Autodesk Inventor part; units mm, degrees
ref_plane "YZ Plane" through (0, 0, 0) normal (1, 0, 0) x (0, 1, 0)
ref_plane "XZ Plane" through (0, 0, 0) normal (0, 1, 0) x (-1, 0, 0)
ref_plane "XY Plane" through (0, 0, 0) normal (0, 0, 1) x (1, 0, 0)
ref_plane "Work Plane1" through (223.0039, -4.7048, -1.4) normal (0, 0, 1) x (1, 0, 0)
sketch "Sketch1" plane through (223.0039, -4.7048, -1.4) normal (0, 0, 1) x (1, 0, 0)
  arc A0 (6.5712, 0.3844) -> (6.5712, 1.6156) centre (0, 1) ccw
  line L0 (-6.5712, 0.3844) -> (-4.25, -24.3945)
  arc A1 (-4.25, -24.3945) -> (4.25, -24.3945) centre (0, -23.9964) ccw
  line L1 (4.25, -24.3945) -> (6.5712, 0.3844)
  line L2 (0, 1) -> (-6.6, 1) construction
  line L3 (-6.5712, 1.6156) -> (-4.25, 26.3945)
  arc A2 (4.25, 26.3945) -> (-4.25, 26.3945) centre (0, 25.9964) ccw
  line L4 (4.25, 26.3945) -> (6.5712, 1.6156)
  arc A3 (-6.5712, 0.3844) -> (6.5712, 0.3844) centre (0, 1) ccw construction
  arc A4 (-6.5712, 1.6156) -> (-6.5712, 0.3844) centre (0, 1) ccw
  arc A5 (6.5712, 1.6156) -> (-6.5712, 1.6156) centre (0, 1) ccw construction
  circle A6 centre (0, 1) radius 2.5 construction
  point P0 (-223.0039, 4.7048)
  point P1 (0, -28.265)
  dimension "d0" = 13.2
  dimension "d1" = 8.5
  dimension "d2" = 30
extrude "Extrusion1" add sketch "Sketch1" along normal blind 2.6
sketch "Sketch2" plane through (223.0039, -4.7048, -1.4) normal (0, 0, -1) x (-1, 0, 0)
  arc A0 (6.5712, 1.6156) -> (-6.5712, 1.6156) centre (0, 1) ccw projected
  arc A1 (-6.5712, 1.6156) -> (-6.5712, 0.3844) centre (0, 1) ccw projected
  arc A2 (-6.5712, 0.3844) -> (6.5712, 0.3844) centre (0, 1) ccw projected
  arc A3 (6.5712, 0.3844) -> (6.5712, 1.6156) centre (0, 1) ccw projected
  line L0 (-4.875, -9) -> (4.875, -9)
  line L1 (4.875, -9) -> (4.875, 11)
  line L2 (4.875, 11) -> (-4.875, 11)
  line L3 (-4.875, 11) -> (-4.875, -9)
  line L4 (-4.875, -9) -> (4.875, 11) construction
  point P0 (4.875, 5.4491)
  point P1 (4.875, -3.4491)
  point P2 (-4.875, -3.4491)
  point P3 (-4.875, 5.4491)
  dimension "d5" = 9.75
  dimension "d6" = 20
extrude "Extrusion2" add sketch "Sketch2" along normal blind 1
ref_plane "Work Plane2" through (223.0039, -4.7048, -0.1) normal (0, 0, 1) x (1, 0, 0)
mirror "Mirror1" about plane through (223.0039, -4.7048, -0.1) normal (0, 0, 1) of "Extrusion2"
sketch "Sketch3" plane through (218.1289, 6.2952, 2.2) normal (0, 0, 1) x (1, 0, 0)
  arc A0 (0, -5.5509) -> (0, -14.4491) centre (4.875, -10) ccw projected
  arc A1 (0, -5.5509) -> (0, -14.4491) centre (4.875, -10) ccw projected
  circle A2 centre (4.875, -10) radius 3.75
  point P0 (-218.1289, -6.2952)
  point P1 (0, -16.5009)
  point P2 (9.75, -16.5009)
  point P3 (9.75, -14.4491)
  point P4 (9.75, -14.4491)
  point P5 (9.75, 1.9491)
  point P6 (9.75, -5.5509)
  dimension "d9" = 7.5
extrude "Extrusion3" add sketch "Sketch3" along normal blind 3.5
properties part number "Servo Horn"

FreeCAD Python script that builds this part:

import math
import FreeCAD as App
import Part
import Sketcher

doc = App.newDocument("Part")
body = doc.addObject("PartDesign::Body", "Body")

# Sketch on XY plane
sketch1 = doc.addObject("Sketcher::SketchObject", "Sketch")
body.addObject(sketch1)
sketch1.AttachmentSupport = (doc.XY_Plane, [""])
sketch1.MapMode = "FlatFace"
sketch1.AttachmentOffset = App.Placement(App.Vector(0, 0, -1.4), App.Rotation())
sketch1.addGeometry(Part.LineSegment(App.Vector(227.2539, -29.0993, 0), App.Vector(229.5751, -4.3204, 0)), False)
sketch1.addGeometry(Part.ArcOfCircle(Part.Circle(App.Vector(223.0039, -3.7048, 0), App.Vector(0, 0, 1), 6.599972), math.radians(-5.351936), math.radians(5.351936)), False)
sketch1.addGeometry(Part.LineSegment(App.Vector(229.5751, -3.0892, 0), App.Vector(227.2539, 21.6897, 0)), False)
sketch1.addGeometry(Part.ArcOfCircle(Part.Circle(App.Vector(223.0039, 21.2916, 0), App.Vector(0, 0, 1), 4.268604), math.radians(5.351315), math.radians(174.648685)), False)
sketch1.addGeometry(Part.LineSegment(App.Vector(218.7539, 21.6897, 0), App.Vector(216.4327, -3.0892, 0)), False)
sketch1.addGeometry(Part.ArcOfCircle(Part.Circle(App.Vector(223.0039, -3.7048, 0), App.Vector(0, 0, 1), 6.599972), math.radians(174.648064), math.radians(185.351936)), False)
sketch1.addGeometry(Part.LineSegment(App.Vector(216.4327, -4.3204, 0), App.Vector(218.7539, -29.0993, 0)), False)
sketch1.addGeometry(Part.ArcOfCircle(Part.Circle(App.Vector(223.0039, -28.7012, 0), App.Vector(0, 0, 1), 4.268604), math.radians(-174.648685), math.radians(-5.351315)), False)
sketch1.addConstraint(Sketcher.Constraint("Tangent", 0, 2, 1, 1))
sketch1.addConstraint(Sketcher.Constraint("Tangent", 1, 2, 2, 1))
sketch1.addConstraint(Sketcher.Constraint("Tangent", 2, 2, 3, 1))
sketch1.addConstraint(Sketcher.Constraint("Tangent", 3, 2, 4, 1))
sketch1.addConstraint(Sketcher.Constraint("Tangent", 4, 2, 5, 1))
sketch1.addConstraint(Sketcher.Constraint("Tangent", 5, 2, 6, 1))
sketch1.addConstraint(Sketcher.Constraint("Tangent", 6, 2, 7, 1))
sketch1.addConstraint(Sketcher.Constraint("Tangent", 7, 2, 0, 1))
sketch1.addConstraint(Sketcher.Constraint("Coincident", 5, 3, 1, 3))
sketch1.addConstraint(Sketcher.Constraint("Equal", 1, 5))
sketch1.addConstraint(Sketcher.Constraint("Equal", 3, 7))
sketch1.addConstraint(Sketcher.Constraint("Parallel", 0, 4))
sketch1.addConstraint(Sketcher.Constraint("Parallel", 2, 6))
sketch1.addConstraint(Sketcher.Constraint("Horizontal", 2, 2, 3, 2))
sketch1.addConstraint(Sketcher.Constraint("Radius", 1, 6.6))
sketch1.addConstraint(Sketcher.Constraint("DistanceX", 3, 2, 2, 2, 8.5))
sketch1.addConstraint(Sketcher.Constraint("DistanceY", 0, 2, 2, 2, 26.01))
sketch1.addConstraint(Sketcher.Constraint("DistanceX", -1, 1, 1, 3, 223.004))
sketch1.addConstraint(Sketcher.Constraint("DistanceY", 1, 3, -1, 1, 3.7048))
pad1 = doc.addObject("PartDesign::Pad", "Pad")
body.addObject(pad1)
pad1.Profile = sketch1
pad1.Length = 2.6

# Sketch on XY plane
sketch2 = doc.addObject("Sketcher::SketchObject", "Sketch001")
body.addObject(sketch2)
sketch2.AttachmentSupport = (doc.XY_Plane, [""])
sketch2.MapMode = "FlatFace"
sketch2.AttachmentOffset = App.Placement(App.Vector(0, 0, -1.4), App.Rotation())
sketch2.addGeometry(Part.LineSegment(App.Vector(218.1289, 0.744246, 0), App.Vector(218.1289, 6.2952, 0)), False)
sketch2.addGeometry(Part.LineSegment(App.Vector(218.1289, 6.2952, 0), App.Vector(227.8789, 6.2952, 0)), False)
sketch2.addGeometry(Part.LineSegment(App.Vector(227.8789, 6.2952, 0), App.Vector(227.8789, 0.744246, 0)), False)
sketch2.addGeometry(Part.ArcOfCircle(Part.Circle(App.Vector(223.0039, -3.7048, 0), App.Vector(0, 0, 1), 6.599972), math.radians(-42.384352), math.radians(42.384352)), False)
sketch2.addGeometry(Part.LineSegment(App.Vector(227.8789, -8.153846, 0), App.Vector(227.8789, -13.7048, 0)), False)
sketch2.addGeometry(Part.LineSegment(App.Vector(227.8789, -13.7048, 0), App.Vector(218.1289, -13.7048, 0)), False)
sketch2.addGeometry(Part.LineSegment(App.Vector(218.1289, -13.7048, 0), App.Vector(218.1289, -8.153846, 0)), False)
sketch2.addGeometry(Part.ArcOfCircle(Part.Circle(App.Vector(223.0039, -3.7048, 0), App.Vector(0, 0, 1), 6.599972), math.radians(137.615648), math.radians(222.384352)), False)
sketch2.addConstraint(Sketcher.Constraint("Coincident", 0, 2, 1, 1))
sketch2.addConstraint(Sketcher.Constraint("Coincident", 1, 2, 2, 1))
sketch2.addConstraint(Sketcher.Constraint("Coincident", 2, 2, 3, 2))
sketch2.addConstraint(Sketcher.Constraint("Coincident", 3, 1, 4, 1))
sketch2.addConstraint(Sketcher.Constraint("Coincident", 4, 2, 5, 1))
sketch2.addConstraint(Sketcher.Constraint("Coincident", 5, 2, 6, 1))
sketch2.addConstraint(Sketcher.Constraint("Coincident", 6, 2, 7, 2))
sketch2.addConstraint(Sketcher.Constraint("Coincident", 7, 1, 0, 1))
sketch2.addConstraint(Sketcher.Constraint("Vertical", 0))
sketch2.addConstraint(Sketcher.Constraint("Horizontal", 1))
sketch2.addConstraint(Sketcher.Constraint("Vertical", 2))
sketch2.addConstraint(Sketcher.Constraint("Vertical", 4))
sketch2.addConstraint(Sketcher.Constraint("Horizontal", 5))
sketch2.addConstraint(Sketcher.Constraint("Vertical", 6))
sketch2.addConstraint(Sketcher.Constraint("Coincident", 7, 3, 3, 3))
sketch2.addConstraint(Sketcher.Constraint("Equal", 3, 7))
sketch2.addConstraint(Sketcher.Constraint("Horizontal", 3, 1, 6, 2))
sketch2.addConstraint(Sketcher.Constraint("Horizontal", 2, 2, 7, 1))
sketch2.addConstraint(Sketcher.Constraint("Vertical", 2, 2, 3, 1))
sketch2.addConstraint(Sketcher.Constraint("Equal", 2, 4))
sketch2.addConstraint(Sketcher.Constraint("DistanceY", 4, 2, 1, 2, 20.0))
sketch2.addConstraint(Sketcher.Constraint("DistanceX", 1, 1, 1, 2, 9.75))
sketch2.addConstraint(Sketcher.Constraint("Radius", 3, 6.6))
sketch2.addConstraint(Sketcher.Constraint("DistanceX", -1, 1, 3, 3, 223.004))
sketch2.addConstraint(Sketcher.Constraint("DistanceY", 3, 3, -1, 1, 3.7048))
pad2 = doc.addObject("PartDesign::Pad", "Pad001")
body.addObject(pad2)
pad2.Profile = sketch2
pad2.Length = 1
pad2.Reversed = True
doc.recompute()

datumplane = doc.addObject("PartDesign::Plane", "DatumPlane")
body.addObject(datumplane)
datumplane.AttachmentSupport = (doc.XY_Plane, [""])
datumplane.MapMode = "FlatFace"
datumplane.AttachmentOffset = App.Placement(App.Vector(0, 0, -0.1), App.Rotation())
mirrored = doc.addObject("PartDesign::Mirrored", "Mirrored")
body.addObject(mirrored)
mirrored.Originals = [pad2]
mirrored.MirrorPlane = (datumplane, [""])
body.Tip = mirrored

# Sketch on XY plane
sketch3 = doc.addObject("Sketcher::SketchObject", "Sketch002")
body.addObject(sketch3)
sketch3.AttachmentSupport = (doc.XY_Plane, [""])
sketch3.MapMode = "FlatFace"
sketch3.AttachmentOffset = App.Placement(App.Vector(0, 0, 2.2), App.Rotation())
sketch3.addGeometry(Part.Circle(App.Vector(223.0039, -3.7048, 0), App.Vector(0, 0, 1), 3.75), False)
sketch3.addConstraint(Sketcher.Constraint("Diameter", 0, 7.5))
sketch3.addConstraint(Sketcher.Constraint("DistanceX", -1, 1, 0, 3, 223.004))
sketch3.addConstraint(Sketcher.Constraint("DistanceY", 0, 3, -1, 1, 3.7048))
pad3 = doc.addObject("PartDesign::Pad", "Pad002")
body.addObject(pad3)
pad3.Profile = sketch3
pad3.Length = 3.5

doc.recompute()
